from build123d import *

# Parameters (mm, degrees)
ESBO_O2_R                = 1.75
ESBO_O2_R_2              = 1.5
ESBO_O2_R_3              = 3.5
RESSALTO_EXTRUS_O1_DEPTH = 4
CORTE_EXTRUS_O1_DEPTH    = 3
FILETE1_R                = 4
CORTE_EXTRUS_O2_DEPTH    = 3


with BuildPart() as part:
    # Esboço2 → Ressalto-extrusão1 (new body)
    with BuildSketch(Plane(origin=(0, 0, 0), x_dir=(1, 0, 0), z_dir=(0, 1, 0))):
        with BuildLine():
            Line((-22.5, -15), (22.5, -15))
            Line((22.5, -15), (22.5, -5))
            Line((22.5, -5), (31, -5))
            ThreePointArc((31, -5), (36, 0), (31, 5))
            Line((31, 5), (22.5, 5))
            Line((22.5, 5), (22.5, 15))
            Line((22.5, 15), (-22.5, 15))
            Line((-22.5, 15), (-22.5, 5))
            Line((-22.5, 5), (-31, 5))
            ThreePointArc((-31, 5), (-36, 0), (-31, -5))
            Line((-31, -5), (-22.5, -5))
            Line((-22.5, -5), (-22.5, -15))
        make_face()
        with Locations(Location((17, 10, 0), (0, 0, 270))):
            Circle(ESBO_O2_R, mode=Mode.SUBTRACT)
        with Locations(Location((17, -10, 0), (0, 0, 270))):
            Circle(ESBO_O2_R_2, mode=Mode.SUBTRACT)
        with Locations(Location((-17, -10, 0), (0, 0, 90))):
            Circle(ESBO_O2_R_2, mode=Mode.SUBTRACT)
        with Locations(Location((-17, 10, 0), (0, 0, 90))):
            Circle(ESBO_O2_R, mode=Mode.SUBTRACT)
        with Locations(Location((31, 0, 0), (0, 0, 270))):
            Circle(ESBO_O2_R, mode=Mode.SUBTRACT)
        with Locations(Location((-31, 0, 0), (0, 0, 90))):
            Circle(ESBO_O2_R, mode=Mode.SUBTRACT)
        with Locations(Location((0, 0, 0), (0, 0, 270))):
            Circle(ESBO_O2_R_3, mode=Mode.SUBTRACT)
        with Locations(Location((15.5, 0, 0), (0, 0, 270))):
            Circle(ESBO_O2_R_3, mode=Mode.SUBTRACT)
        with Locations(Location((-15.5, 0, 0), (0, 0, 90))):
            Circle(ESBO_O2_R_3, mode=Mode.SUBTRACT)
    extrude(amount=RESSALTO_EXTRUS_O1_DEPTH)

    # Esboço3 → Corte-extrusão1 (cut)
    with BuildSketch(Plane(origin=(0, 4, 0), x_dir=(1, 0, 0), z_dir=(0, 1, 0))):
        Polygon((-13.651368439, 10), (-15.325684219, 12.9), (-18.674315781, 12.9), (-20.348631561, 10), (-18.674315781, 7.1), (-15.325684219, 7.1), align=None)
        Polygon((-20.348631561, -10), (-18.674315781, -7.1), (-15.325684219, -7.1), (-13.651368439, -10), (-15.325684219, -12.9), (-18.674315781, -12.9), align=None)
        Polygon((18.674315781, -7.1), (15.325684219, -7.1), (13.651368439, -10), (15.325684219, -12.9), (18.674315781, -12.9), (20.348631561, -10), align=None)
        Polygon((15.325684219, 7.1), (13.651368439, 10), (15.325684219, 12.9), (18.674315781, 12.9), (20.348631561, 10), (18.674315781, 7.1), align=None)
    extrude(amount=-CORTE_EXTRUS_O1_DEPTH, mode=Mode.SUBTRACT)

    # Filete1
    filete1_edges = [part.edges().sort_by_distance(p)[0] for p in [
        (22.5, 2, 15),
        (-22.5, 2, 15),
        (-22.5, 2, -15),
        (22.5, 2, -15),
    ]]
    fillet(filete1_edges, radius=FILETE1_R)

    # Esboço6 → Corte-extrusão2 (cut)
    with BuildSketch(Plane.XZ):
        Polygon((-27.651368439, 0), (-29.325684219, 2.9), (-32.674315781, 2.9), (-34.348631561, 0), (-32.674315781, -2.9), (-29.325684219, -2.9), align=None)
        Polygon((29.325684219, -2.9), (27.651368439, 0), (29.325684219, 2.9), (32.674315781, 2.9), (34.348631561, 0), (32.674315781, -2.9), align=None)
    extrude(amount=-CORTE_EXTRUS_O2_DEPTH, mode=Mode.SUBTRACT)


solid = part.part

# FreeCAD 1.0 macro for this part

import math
import FreeCAD as App
import Part
import Sketcher
from FreeCAD import Vector
Q = App.Units.Quantity


def edges_at(feature, points):
    """Names of the edges that pass closest to the given points."""
    edges = feature.Shape.Edges
    near = lambda p: min(range(len(edges)), key=lambda i: edges[i].distToShape(Part.Vertex(*p))[0])
    return sorted({f"Edge{near(p) + 1}" for p in points})


def add_polygon(sketch, points):
    """Adds a closed chain of lines whose ends are joined by coincident constraints."""
    first, n = sketch.GeometryCount, len(points)
    for a, b in zip(points, points[1:] + points[:1]):
        sketch.addGeometry(Part.LineSegment(App.Vector(*a, 0), App.Vector(*b, 0)), False)
    for i in range(n):
        sketch.addConstraint(Sketcher.Constraint("Coincident", first + i, 2, first + (i + 1) % n, 1))

doc = App.newDocument("Part")
body = doc.addObject("PartDesign::Body", "Body")

sketch1 = body.newObject("Sketcher::SketchObject", "Sketch")
sketch1.AttachmentSupport = (doc.getObject("XZ_Plane"), [""])
sketch1.MapMode = "FlatFace"
sketch1.addGeometry(Part.LineSegment(Vector(-22.5, 15, 0), Vector(22.5, 15, 0)), False)
sketch1.addGeometry(Part.LineSegment(Vector(22.5, 15, 0), Vector(22.5, 5, 0)), False)
sketch1.addGeometry(Part.LineSegment(Vector(22.5, 5, 0), Vector(31, 5, 0)), False)
sketch1.addGeometry(Part.ArcOfCircle(Part.Circle(Vector(31, 0, 0), Vector(0, 0, 1), 5), math.radians(-90), math.radians(90)), False)
sketch1.addGeometry(Part.LineSegment(Vector(31, -5, 0), Vector(22.5, -5, 0)), False)
sketch1.addGeometry(Part.LineSegment(Vector(22.5, -5, 0), Vector(22.5, -15, 0)), False)
sketch1.addGeometry(Part.LineSegment(Vector(22.5, -15, 0), Vector(-22.5, -15, 0)), False)
sketch1.addGeometry(Part.LineSegment(Vector(-22.5, -15, 0), Vector(-22.5, -5, 0)), False)
sketch1.addGeometry(Part.LineSegment(Vector(-22.5, -5, 0), Vector(-31, -5, 0)), False)
sketch1.addGeometry(Part.ArcOfCircle(Part.Circle(Vector(-31, 0, 0), Vector(0, 0, 1), 5), math.radians(90), math.radians(270)), False)
sketch1.addGeometry(Part.LineSegment(Vector(-31, 5, 0), Vector(-22.5, 5, 0)), False)
sketch1.addGeometry(Part.LineSegment(Vector(-22.5, 5, 0), Vector(-22.5, 15, 0)), False)
sketch1.addGeometry(Part.Circle(Vector(-17, 10, 0), Vector(0, 0, 1), 1.5), False)
sketch1.addGeometry(Part.Circle(Vector(-31, 0, 0), Vector(0, 0, 1), 1.8), False)
sketch1.addGeometry(Part.Circle(Vector(-15.5, 0, 0), Vector(0, 0, 1), 3.5), False)
sketch1.addGeometry(Part.Circle(Vector(17, 10, 0), Vector(0, 0, 1), 1.5), False)
sketch1.addGeometry(Part.Circle(Vector(0, 0, 0), Vector(0, 0, 1), 3.5), False)
sketch1.addGeometry(Part.Circle(Vector(15.5, 0, 0), Vector(0, 0, 1), 3.5), False)
sketch1.addGeometry(Part.Circle(Vector(31, 0, 0), Vector(0, 0, 1), 1.8), False)
sketch1.addGeometry(Part.Circle(Vector(-17, -10, 0), Vector(0, 0, 1), 1.8), False)
sketch1.addGeometry(Part.Circle(Vector(17, -10, 0), Vector(0, 0, 1), 1.8), False)
sketch1.addConstraint(Sketcher.Constraint("Coincident", 0, 2, 1, 1))
sketch1.addConstraint(Sketcher.Constraint("Coincident", 1, 2, 2, 1))
sketch1.addConstraint(Sketcher.Constraint("Tangent", 2, 2, 3, 2))
sketch1.addConstraint(Sketcher.Constraint("Tangent", 3, 1, 4, 1))
sketch1.addConstraint(Sketcher.Constraint("Coincident", 4, 2, 5, 1))
sketch1.addConstraint(Sketcher.Constraint("Coincident", 5, 2, 6, 1))
sketch1.addConstraint(Sketcher.Constraint("Coincident", 6, 2, 7, 1))
sketch1.addConstraint(Sketcher.Constraint("Coincident", 7, 2, 8, 1))
sketch1.addConstraint(Sketcher.Constraint("Tangent", 8, 2, 9, 2))
sketch1.addConstraint(Sketcher.Constraint("Tangent", 9, 1, 10, 1))
sketch1.addConstraint(Sketcher.Constraint("Coincident", 10, 2, 11, 1))
sketch1.addConstraint(Sketcher.Constraint("Coincident", 11, 2, 0, 1))
sketch1.addConstraint(Sketcher.Constraint("Horizontal", 0))
sketch1.addConstraint(Sketcher.Constraint("Vertical", 1))
sketch1.addConstraint(Sketcher.Constraint("Horizontal", 2))
sketch1.addConstraint(Sketcher.Constraint("Horizontal", 4))
sketch1.addConstraint(Sketcher.Constraint("Vertical", 5))
sketch1.addConstraint(Sketcher.Constraint("Horizontal", 6))
sketch1.addConstraint(Sketcher.Constraint("Vertical", 7))
sketch1.addConstraint(Sketcher.Constraint("Horizontal", 8))
sketch1.addConstraint(Sketcher.Constraint("Horizontal", 10))
sketch1.addConstraint(Sketcher.Constraint("Vertical", 11))
sketch1.addConstraint(Sketcher.Constraint("Coincident", 16, 3, -1, 1))
sketch1.addConstraint(Sketcher.Constraint("Coincident", 13, 3, 9, 3))
sketch1.addConstraint(Sketcher.Constraint("Coincident", 18, 3, 3, 3))
sketch1.addConstraint(Sketcher.Constraint("Equal", 3, 9))
sketch1.addConstraint(Sketcher.Constraint("Equal", 12, 15))
sketch1.addConstraint(Sketcher.Constraint("Equal", 14, 16))
sketch1.addConstraint(Sketcher.Constraint("Equal", 16, 17))
sketch1.addConstraint(Sketcher.Constraint("Equal", 13, 18))
sketch1.addConstraint(Sketcher.Constraint("Equal", 18, 19))
sketch1.addConstraint(Sketcher.Constraint("Equal", 19, 20))
sketch1.addConstraint(Sketcher.Constraint("Symmetric", 3, 3, 9, 3, -1, 1))
sketch1.addConstraint(Sketcher.Constraint("Symmetric", 14, 3, 17, 3, -1, 1))
sketch1.addConstraint(Sketcher.Constraint("Symmetric", 15, 3, 19, 3, -1, 1))
sketch1.addConstraint(Sketcher.Constraint("Symmetric", 12, 3, 20, 3, -1, 1))
sketch1.addConstraint(Sketcher.Constraint("Symmetric", 0, 2, 6, 2, -1, 1))
sketch1.addConstraint(Sketcher.Constraint("Symmetric", 12, 3, 15, 3, -2))
sketch1.addConstraint(Sketcher.Constraint("Symmetric", 4, 2, 7, 2, -2))
sketch1.addConstraint(Sketcher.Constraint("PointOnObject", 14, 3, -1))
sketch1.addConstraint(Sketcher.Constraint("Vertical", 7, 2, 10, 2))
sketch1.addConstraint(Sketcher.Constraint("Diameter", 12, 3.0))
sketch1.addConstraint(Sketcher.Constraint("Diameter", 14, 7.0))
sketch1.addConstraint(Sketcher.Constraint("Radius", 3, 5.0))
sketch1.addConstraint(Sketcher.Constraint("Diameter", 13, 3.5))
sketch1.addConstraint(Sketcher.Constraint("DistanceX", 0, 1, 0, 2, 45.0))
sketch1.addConstraint(Sketcher.Constraint("DistanceY", 1, 2, 1, 1, 10.0))
sketch1.addConstraint(Sketcher.Constraint("DistanceX", 2, 1, 2, 2, 8.5))
sketch1.addConstraint(Sketcher.Constraint("DistanceX", 12, 3, -1, 1, 17.0))
sketch1.addConstraint(Sketcher.Constraint("DistanceY", -1, 1, 12, 3, 10.0))
sketch1.addConstraint(Sketcher.Constraint("DistanceX", 14, 3, 17, 3, 31.0))
pad1 = body.newObject("PartDesign::Pad", "Pad")
pad1.Profile = sketch1
pad1.Length = 4
pad1.Reversed = True

sketch2 = body.newObject("Sketcher::SketchObject", "Sketch001")
sketch2.AttachmentSupport = (doc.getObject("XZ_Plane"), [""])
sketch2.MapMode = "FlatFace"
sketch2.AttachmentOffset = App.Placement(Vector(0, 0, -4), App.Rotation())
add_polygon(sketch2, [(-13.7, -10), (-15.3, -12.9), (-18.7, -12.9), (-20.3, -10), (-18.7, -7.1), (-15.3, -7.1)])
add_polygon(sketch2, [(-18.7, 7.1), (-20.3, 10), (-18.7, 12.9), (-15.3, 12.9), (-13.7, 10), (-15.3, 7.1)])
add_polygon(sketch2, [(18.7, 7.1), (15.3, 7.1), (13.7, 10), (15.3, 12.9), (18.7, 12.9), (20.3, 10)])
add_polygon(sketch2, [(13.7, -10), (15.3, -7.1), (18.7, -7.1), (20.3, -10), (18.7, -12.9), (15.3, -12.9)])
sketch2.addConstraint(Sketcher.Constraint("Horizontal", 1))
sketch2.addConstraint(Sketcher.Constraint("Horizontal", 4))
sketch2.addConstraint(Sketcher.Constraint("Horizontal", 8))
sketch2.addConstraint(Sketcher.Constraint("Horizontal", 11))
sketch2.addConstraint(Sketcher.Constraint("Horizontal", 12))
sketch2.addConstraint(Sketcher.Constraint("Horizontal", 15))
sketch2.addConstraint(Sketcher.Constraint("Horizontal", 19))
sketch2.addConstraint(Sketcher.Constraint("Horizontal", 22))
sketch2.addConstraint(Sketcher.Constraint("Symmetric", 4, 2, 12, 2, -1, 1))
sketch2.addConstraint(Sketcher.Constraint("Symmetric", 5, 2, 13, 2, -1, 1))
sketch2.addConstraint(Sketcher.Constraint("Symmetric", 0, 2, 14, 2, -1, 1))
sketch2.addConstraint(Sketcher.Constraint("Symmetric", 2, 2, 16, 2, -1, 1))
sketch2.addConstraint(Sketcher.Constraint("Symmetric", 10, 2, 18, 2, -1, 1))
sketch2.addConstraint(Sketcher.Constraint("Symmetric", 6, 2, 20, 2, -1, 1))
sketch2.addConstraint(Sketcher.Constraint("Symmetric", 7, 2, 21, 2, -1, 1))
sketch2.addConstraint(Sketcher.Constraint("Symmetric", 9, 2, 23, 2, -1, 1))
sketch2.addConstraint(Sketcher.Constraint("Symmetric", 10, 2, 12, 2, -2))
sketch2.addConstraint(Sketcher.Constraint("Symmetric", 9, 2, 13, 2, -2))
sketch2.addConstraint(Sketcher.Constraint("Symmetric", 8, 2, 14, 2, -2))
sketch2.addConstraint(Sketcher.Constraint("Symmetric", 6, 2, 16, 2, -2))
sketch2.addConstraint(Sketcher.Constraint("Parallel", 0, 3))
sketch2.addConstraint(Sketcher.Constraint("Parallel", 2, 5))
sketch2.addConstraint(Sketcher.Constraint("Parallel", 5, 6))
sketch2.addConstraint(Sketcher.Constraint("Parallel", 3, 7))
sketch2.addConstraint(Sketcher.Constraint("Parallel", 6, 9))
sketch2.addConstraint(Sketcher.Constraint("Parallel", 13, 16))
sketch2.addConstraint(Sketcher.Constraint("Parallel", 14, 17))
sketch2.addConstraint(Sketcher.Constraint("Parallel", 16, 20))
sketch2.addConstraint(Sketcher.Constraint("Parallel", 20, 23))
sketch2.addConstraint(Sketcher.Constraint("Horizontal", 2, 2, 5, 2))
sketch2.addConstraint(Sketcher.Constraint("Vertical", 1, 2, 3, 2))
sketch2.addConstraint(Sketcher.Constraint("Angle", 0, Q("-120 deg")))
sketch2.addConstraint(Sketcher.Constraint("DistanceY", 2, 2, -1, 1, 10.0))
sketch2.addConstraint(Sketcher.Constraint("DistanceX", 8, 2, 15, 2, 34.0))
sketch2.addConstraint(Sketcher.Constraint("DistanceY", 0, 2, -1, 1, 12.9))
sketch2.addConstraint(Sketcher.Constraint("DistanceX", 1, 2, 1, 1, 3.348632))
pocket1 = body.newObject("PartDesign::Pocket", "Pocket")
pocket1.Profile = sketch2
pocket1.Length = 3
pocket1.Reversed = True
doc.recompute()

fillet = body.newObject("PartDesign::Fillet", "Fillet")
fillet.Base = (pocket1, edges_at(pocket1, [
    (22.5, 2, 15),
    (-22.5, 2, 15),
    (-22.5, 2, -15),
    (22.5, 2, -15),
]))
fillet.Radius = 4

sketch3 = body.newObject("Sketcher::SketchObject", "Sketch002")
sketch3.AttachmentSupport = (doc.getObject("XZ_Plane"), [""])
sketch3.MapMode = "FlatFace"
add_polygon(sketch3, [(-27.7, 0), (-29.3, 2.9), (-32.7, 2.9), (-34.3, 0), (-32.7, -2.9), (-29.3, -2.9)])
add_polygon(sketch3, [(27.7, 0), (29.3, -2.9), (32.7, -2.9), (34.3, 0), (32.7, 2.9), (29.3, 2.9)])
sketch3.addConstraint(Sketcher.Constraint("Horizontal", 1))
sketch3.addConstraint(Sketcher.Constraint("Horizontal", 4))
sketch3.addConstraint(Sketcher.Constraint("Horizontal", 7))
sketch3.addConstraint(Sketcher.Constraint("Horizontal", 10))
sketch3.addConstraint(Sketcher.Constraint("Symmetric", 0, 2, 6, 2, -1, 1))
sketch3.addConstraint(Sketcher.Constraint("Symmetric", 2, 2, 8, 2, -1, 1))
sketch3.addConstraint(Sketcher.Constraint("Symmetric", 3, 2, 9, 2, -1, 1))
sketch3.addConstraint(Sketcher.Constraint("Symmetric", 5, 2, 11, 2, -1, 1))
sketch3.addConstraint(Sketcher.Constraint("Symmetric", 4, 2, 6, 2, -2))
sketch3.addConstraint(Sketcher.Constraint("PointOnObject", 2, 2, -1))
sketch3.addConstraint(Sketcher.Constraint("PointOnObject", 5, 2, -1))
sketch3.addConstraint(Sketcher.Constraint("Parallel", 0, 3))
sketch3.addConstraint(Sketcher.Constraint("Parallel", 2, 5))
sketch3.addConstraint(Sketcher.Constraint("Parallel", 5, 8))
sketch3.addConstraint(Sketcher.Constraint("Parallel", 8, 11))
sketch3.addConstraint(Sketcher.Constraint("Angle", 0, Q("120 deg")))
sketch3.addConstraint(Sketcher.Constraint("DistanceX", 3, 2, 6, 2, 62.0))
sketch3.addConstraint(Sketcher.Constraint("DistanceY", -1, 1, 0, 2, 2.9))
sketch3.addConstraint(Sketcher.Constraint("DistanceX", 1, 2, 1, 1, 3.348632))
pocket2 = body.newObject("PartDesign::Pocket", "Pocket001")
pocket2.Profile = sketch3
pocket2.Length = 3

doc.recompute()
